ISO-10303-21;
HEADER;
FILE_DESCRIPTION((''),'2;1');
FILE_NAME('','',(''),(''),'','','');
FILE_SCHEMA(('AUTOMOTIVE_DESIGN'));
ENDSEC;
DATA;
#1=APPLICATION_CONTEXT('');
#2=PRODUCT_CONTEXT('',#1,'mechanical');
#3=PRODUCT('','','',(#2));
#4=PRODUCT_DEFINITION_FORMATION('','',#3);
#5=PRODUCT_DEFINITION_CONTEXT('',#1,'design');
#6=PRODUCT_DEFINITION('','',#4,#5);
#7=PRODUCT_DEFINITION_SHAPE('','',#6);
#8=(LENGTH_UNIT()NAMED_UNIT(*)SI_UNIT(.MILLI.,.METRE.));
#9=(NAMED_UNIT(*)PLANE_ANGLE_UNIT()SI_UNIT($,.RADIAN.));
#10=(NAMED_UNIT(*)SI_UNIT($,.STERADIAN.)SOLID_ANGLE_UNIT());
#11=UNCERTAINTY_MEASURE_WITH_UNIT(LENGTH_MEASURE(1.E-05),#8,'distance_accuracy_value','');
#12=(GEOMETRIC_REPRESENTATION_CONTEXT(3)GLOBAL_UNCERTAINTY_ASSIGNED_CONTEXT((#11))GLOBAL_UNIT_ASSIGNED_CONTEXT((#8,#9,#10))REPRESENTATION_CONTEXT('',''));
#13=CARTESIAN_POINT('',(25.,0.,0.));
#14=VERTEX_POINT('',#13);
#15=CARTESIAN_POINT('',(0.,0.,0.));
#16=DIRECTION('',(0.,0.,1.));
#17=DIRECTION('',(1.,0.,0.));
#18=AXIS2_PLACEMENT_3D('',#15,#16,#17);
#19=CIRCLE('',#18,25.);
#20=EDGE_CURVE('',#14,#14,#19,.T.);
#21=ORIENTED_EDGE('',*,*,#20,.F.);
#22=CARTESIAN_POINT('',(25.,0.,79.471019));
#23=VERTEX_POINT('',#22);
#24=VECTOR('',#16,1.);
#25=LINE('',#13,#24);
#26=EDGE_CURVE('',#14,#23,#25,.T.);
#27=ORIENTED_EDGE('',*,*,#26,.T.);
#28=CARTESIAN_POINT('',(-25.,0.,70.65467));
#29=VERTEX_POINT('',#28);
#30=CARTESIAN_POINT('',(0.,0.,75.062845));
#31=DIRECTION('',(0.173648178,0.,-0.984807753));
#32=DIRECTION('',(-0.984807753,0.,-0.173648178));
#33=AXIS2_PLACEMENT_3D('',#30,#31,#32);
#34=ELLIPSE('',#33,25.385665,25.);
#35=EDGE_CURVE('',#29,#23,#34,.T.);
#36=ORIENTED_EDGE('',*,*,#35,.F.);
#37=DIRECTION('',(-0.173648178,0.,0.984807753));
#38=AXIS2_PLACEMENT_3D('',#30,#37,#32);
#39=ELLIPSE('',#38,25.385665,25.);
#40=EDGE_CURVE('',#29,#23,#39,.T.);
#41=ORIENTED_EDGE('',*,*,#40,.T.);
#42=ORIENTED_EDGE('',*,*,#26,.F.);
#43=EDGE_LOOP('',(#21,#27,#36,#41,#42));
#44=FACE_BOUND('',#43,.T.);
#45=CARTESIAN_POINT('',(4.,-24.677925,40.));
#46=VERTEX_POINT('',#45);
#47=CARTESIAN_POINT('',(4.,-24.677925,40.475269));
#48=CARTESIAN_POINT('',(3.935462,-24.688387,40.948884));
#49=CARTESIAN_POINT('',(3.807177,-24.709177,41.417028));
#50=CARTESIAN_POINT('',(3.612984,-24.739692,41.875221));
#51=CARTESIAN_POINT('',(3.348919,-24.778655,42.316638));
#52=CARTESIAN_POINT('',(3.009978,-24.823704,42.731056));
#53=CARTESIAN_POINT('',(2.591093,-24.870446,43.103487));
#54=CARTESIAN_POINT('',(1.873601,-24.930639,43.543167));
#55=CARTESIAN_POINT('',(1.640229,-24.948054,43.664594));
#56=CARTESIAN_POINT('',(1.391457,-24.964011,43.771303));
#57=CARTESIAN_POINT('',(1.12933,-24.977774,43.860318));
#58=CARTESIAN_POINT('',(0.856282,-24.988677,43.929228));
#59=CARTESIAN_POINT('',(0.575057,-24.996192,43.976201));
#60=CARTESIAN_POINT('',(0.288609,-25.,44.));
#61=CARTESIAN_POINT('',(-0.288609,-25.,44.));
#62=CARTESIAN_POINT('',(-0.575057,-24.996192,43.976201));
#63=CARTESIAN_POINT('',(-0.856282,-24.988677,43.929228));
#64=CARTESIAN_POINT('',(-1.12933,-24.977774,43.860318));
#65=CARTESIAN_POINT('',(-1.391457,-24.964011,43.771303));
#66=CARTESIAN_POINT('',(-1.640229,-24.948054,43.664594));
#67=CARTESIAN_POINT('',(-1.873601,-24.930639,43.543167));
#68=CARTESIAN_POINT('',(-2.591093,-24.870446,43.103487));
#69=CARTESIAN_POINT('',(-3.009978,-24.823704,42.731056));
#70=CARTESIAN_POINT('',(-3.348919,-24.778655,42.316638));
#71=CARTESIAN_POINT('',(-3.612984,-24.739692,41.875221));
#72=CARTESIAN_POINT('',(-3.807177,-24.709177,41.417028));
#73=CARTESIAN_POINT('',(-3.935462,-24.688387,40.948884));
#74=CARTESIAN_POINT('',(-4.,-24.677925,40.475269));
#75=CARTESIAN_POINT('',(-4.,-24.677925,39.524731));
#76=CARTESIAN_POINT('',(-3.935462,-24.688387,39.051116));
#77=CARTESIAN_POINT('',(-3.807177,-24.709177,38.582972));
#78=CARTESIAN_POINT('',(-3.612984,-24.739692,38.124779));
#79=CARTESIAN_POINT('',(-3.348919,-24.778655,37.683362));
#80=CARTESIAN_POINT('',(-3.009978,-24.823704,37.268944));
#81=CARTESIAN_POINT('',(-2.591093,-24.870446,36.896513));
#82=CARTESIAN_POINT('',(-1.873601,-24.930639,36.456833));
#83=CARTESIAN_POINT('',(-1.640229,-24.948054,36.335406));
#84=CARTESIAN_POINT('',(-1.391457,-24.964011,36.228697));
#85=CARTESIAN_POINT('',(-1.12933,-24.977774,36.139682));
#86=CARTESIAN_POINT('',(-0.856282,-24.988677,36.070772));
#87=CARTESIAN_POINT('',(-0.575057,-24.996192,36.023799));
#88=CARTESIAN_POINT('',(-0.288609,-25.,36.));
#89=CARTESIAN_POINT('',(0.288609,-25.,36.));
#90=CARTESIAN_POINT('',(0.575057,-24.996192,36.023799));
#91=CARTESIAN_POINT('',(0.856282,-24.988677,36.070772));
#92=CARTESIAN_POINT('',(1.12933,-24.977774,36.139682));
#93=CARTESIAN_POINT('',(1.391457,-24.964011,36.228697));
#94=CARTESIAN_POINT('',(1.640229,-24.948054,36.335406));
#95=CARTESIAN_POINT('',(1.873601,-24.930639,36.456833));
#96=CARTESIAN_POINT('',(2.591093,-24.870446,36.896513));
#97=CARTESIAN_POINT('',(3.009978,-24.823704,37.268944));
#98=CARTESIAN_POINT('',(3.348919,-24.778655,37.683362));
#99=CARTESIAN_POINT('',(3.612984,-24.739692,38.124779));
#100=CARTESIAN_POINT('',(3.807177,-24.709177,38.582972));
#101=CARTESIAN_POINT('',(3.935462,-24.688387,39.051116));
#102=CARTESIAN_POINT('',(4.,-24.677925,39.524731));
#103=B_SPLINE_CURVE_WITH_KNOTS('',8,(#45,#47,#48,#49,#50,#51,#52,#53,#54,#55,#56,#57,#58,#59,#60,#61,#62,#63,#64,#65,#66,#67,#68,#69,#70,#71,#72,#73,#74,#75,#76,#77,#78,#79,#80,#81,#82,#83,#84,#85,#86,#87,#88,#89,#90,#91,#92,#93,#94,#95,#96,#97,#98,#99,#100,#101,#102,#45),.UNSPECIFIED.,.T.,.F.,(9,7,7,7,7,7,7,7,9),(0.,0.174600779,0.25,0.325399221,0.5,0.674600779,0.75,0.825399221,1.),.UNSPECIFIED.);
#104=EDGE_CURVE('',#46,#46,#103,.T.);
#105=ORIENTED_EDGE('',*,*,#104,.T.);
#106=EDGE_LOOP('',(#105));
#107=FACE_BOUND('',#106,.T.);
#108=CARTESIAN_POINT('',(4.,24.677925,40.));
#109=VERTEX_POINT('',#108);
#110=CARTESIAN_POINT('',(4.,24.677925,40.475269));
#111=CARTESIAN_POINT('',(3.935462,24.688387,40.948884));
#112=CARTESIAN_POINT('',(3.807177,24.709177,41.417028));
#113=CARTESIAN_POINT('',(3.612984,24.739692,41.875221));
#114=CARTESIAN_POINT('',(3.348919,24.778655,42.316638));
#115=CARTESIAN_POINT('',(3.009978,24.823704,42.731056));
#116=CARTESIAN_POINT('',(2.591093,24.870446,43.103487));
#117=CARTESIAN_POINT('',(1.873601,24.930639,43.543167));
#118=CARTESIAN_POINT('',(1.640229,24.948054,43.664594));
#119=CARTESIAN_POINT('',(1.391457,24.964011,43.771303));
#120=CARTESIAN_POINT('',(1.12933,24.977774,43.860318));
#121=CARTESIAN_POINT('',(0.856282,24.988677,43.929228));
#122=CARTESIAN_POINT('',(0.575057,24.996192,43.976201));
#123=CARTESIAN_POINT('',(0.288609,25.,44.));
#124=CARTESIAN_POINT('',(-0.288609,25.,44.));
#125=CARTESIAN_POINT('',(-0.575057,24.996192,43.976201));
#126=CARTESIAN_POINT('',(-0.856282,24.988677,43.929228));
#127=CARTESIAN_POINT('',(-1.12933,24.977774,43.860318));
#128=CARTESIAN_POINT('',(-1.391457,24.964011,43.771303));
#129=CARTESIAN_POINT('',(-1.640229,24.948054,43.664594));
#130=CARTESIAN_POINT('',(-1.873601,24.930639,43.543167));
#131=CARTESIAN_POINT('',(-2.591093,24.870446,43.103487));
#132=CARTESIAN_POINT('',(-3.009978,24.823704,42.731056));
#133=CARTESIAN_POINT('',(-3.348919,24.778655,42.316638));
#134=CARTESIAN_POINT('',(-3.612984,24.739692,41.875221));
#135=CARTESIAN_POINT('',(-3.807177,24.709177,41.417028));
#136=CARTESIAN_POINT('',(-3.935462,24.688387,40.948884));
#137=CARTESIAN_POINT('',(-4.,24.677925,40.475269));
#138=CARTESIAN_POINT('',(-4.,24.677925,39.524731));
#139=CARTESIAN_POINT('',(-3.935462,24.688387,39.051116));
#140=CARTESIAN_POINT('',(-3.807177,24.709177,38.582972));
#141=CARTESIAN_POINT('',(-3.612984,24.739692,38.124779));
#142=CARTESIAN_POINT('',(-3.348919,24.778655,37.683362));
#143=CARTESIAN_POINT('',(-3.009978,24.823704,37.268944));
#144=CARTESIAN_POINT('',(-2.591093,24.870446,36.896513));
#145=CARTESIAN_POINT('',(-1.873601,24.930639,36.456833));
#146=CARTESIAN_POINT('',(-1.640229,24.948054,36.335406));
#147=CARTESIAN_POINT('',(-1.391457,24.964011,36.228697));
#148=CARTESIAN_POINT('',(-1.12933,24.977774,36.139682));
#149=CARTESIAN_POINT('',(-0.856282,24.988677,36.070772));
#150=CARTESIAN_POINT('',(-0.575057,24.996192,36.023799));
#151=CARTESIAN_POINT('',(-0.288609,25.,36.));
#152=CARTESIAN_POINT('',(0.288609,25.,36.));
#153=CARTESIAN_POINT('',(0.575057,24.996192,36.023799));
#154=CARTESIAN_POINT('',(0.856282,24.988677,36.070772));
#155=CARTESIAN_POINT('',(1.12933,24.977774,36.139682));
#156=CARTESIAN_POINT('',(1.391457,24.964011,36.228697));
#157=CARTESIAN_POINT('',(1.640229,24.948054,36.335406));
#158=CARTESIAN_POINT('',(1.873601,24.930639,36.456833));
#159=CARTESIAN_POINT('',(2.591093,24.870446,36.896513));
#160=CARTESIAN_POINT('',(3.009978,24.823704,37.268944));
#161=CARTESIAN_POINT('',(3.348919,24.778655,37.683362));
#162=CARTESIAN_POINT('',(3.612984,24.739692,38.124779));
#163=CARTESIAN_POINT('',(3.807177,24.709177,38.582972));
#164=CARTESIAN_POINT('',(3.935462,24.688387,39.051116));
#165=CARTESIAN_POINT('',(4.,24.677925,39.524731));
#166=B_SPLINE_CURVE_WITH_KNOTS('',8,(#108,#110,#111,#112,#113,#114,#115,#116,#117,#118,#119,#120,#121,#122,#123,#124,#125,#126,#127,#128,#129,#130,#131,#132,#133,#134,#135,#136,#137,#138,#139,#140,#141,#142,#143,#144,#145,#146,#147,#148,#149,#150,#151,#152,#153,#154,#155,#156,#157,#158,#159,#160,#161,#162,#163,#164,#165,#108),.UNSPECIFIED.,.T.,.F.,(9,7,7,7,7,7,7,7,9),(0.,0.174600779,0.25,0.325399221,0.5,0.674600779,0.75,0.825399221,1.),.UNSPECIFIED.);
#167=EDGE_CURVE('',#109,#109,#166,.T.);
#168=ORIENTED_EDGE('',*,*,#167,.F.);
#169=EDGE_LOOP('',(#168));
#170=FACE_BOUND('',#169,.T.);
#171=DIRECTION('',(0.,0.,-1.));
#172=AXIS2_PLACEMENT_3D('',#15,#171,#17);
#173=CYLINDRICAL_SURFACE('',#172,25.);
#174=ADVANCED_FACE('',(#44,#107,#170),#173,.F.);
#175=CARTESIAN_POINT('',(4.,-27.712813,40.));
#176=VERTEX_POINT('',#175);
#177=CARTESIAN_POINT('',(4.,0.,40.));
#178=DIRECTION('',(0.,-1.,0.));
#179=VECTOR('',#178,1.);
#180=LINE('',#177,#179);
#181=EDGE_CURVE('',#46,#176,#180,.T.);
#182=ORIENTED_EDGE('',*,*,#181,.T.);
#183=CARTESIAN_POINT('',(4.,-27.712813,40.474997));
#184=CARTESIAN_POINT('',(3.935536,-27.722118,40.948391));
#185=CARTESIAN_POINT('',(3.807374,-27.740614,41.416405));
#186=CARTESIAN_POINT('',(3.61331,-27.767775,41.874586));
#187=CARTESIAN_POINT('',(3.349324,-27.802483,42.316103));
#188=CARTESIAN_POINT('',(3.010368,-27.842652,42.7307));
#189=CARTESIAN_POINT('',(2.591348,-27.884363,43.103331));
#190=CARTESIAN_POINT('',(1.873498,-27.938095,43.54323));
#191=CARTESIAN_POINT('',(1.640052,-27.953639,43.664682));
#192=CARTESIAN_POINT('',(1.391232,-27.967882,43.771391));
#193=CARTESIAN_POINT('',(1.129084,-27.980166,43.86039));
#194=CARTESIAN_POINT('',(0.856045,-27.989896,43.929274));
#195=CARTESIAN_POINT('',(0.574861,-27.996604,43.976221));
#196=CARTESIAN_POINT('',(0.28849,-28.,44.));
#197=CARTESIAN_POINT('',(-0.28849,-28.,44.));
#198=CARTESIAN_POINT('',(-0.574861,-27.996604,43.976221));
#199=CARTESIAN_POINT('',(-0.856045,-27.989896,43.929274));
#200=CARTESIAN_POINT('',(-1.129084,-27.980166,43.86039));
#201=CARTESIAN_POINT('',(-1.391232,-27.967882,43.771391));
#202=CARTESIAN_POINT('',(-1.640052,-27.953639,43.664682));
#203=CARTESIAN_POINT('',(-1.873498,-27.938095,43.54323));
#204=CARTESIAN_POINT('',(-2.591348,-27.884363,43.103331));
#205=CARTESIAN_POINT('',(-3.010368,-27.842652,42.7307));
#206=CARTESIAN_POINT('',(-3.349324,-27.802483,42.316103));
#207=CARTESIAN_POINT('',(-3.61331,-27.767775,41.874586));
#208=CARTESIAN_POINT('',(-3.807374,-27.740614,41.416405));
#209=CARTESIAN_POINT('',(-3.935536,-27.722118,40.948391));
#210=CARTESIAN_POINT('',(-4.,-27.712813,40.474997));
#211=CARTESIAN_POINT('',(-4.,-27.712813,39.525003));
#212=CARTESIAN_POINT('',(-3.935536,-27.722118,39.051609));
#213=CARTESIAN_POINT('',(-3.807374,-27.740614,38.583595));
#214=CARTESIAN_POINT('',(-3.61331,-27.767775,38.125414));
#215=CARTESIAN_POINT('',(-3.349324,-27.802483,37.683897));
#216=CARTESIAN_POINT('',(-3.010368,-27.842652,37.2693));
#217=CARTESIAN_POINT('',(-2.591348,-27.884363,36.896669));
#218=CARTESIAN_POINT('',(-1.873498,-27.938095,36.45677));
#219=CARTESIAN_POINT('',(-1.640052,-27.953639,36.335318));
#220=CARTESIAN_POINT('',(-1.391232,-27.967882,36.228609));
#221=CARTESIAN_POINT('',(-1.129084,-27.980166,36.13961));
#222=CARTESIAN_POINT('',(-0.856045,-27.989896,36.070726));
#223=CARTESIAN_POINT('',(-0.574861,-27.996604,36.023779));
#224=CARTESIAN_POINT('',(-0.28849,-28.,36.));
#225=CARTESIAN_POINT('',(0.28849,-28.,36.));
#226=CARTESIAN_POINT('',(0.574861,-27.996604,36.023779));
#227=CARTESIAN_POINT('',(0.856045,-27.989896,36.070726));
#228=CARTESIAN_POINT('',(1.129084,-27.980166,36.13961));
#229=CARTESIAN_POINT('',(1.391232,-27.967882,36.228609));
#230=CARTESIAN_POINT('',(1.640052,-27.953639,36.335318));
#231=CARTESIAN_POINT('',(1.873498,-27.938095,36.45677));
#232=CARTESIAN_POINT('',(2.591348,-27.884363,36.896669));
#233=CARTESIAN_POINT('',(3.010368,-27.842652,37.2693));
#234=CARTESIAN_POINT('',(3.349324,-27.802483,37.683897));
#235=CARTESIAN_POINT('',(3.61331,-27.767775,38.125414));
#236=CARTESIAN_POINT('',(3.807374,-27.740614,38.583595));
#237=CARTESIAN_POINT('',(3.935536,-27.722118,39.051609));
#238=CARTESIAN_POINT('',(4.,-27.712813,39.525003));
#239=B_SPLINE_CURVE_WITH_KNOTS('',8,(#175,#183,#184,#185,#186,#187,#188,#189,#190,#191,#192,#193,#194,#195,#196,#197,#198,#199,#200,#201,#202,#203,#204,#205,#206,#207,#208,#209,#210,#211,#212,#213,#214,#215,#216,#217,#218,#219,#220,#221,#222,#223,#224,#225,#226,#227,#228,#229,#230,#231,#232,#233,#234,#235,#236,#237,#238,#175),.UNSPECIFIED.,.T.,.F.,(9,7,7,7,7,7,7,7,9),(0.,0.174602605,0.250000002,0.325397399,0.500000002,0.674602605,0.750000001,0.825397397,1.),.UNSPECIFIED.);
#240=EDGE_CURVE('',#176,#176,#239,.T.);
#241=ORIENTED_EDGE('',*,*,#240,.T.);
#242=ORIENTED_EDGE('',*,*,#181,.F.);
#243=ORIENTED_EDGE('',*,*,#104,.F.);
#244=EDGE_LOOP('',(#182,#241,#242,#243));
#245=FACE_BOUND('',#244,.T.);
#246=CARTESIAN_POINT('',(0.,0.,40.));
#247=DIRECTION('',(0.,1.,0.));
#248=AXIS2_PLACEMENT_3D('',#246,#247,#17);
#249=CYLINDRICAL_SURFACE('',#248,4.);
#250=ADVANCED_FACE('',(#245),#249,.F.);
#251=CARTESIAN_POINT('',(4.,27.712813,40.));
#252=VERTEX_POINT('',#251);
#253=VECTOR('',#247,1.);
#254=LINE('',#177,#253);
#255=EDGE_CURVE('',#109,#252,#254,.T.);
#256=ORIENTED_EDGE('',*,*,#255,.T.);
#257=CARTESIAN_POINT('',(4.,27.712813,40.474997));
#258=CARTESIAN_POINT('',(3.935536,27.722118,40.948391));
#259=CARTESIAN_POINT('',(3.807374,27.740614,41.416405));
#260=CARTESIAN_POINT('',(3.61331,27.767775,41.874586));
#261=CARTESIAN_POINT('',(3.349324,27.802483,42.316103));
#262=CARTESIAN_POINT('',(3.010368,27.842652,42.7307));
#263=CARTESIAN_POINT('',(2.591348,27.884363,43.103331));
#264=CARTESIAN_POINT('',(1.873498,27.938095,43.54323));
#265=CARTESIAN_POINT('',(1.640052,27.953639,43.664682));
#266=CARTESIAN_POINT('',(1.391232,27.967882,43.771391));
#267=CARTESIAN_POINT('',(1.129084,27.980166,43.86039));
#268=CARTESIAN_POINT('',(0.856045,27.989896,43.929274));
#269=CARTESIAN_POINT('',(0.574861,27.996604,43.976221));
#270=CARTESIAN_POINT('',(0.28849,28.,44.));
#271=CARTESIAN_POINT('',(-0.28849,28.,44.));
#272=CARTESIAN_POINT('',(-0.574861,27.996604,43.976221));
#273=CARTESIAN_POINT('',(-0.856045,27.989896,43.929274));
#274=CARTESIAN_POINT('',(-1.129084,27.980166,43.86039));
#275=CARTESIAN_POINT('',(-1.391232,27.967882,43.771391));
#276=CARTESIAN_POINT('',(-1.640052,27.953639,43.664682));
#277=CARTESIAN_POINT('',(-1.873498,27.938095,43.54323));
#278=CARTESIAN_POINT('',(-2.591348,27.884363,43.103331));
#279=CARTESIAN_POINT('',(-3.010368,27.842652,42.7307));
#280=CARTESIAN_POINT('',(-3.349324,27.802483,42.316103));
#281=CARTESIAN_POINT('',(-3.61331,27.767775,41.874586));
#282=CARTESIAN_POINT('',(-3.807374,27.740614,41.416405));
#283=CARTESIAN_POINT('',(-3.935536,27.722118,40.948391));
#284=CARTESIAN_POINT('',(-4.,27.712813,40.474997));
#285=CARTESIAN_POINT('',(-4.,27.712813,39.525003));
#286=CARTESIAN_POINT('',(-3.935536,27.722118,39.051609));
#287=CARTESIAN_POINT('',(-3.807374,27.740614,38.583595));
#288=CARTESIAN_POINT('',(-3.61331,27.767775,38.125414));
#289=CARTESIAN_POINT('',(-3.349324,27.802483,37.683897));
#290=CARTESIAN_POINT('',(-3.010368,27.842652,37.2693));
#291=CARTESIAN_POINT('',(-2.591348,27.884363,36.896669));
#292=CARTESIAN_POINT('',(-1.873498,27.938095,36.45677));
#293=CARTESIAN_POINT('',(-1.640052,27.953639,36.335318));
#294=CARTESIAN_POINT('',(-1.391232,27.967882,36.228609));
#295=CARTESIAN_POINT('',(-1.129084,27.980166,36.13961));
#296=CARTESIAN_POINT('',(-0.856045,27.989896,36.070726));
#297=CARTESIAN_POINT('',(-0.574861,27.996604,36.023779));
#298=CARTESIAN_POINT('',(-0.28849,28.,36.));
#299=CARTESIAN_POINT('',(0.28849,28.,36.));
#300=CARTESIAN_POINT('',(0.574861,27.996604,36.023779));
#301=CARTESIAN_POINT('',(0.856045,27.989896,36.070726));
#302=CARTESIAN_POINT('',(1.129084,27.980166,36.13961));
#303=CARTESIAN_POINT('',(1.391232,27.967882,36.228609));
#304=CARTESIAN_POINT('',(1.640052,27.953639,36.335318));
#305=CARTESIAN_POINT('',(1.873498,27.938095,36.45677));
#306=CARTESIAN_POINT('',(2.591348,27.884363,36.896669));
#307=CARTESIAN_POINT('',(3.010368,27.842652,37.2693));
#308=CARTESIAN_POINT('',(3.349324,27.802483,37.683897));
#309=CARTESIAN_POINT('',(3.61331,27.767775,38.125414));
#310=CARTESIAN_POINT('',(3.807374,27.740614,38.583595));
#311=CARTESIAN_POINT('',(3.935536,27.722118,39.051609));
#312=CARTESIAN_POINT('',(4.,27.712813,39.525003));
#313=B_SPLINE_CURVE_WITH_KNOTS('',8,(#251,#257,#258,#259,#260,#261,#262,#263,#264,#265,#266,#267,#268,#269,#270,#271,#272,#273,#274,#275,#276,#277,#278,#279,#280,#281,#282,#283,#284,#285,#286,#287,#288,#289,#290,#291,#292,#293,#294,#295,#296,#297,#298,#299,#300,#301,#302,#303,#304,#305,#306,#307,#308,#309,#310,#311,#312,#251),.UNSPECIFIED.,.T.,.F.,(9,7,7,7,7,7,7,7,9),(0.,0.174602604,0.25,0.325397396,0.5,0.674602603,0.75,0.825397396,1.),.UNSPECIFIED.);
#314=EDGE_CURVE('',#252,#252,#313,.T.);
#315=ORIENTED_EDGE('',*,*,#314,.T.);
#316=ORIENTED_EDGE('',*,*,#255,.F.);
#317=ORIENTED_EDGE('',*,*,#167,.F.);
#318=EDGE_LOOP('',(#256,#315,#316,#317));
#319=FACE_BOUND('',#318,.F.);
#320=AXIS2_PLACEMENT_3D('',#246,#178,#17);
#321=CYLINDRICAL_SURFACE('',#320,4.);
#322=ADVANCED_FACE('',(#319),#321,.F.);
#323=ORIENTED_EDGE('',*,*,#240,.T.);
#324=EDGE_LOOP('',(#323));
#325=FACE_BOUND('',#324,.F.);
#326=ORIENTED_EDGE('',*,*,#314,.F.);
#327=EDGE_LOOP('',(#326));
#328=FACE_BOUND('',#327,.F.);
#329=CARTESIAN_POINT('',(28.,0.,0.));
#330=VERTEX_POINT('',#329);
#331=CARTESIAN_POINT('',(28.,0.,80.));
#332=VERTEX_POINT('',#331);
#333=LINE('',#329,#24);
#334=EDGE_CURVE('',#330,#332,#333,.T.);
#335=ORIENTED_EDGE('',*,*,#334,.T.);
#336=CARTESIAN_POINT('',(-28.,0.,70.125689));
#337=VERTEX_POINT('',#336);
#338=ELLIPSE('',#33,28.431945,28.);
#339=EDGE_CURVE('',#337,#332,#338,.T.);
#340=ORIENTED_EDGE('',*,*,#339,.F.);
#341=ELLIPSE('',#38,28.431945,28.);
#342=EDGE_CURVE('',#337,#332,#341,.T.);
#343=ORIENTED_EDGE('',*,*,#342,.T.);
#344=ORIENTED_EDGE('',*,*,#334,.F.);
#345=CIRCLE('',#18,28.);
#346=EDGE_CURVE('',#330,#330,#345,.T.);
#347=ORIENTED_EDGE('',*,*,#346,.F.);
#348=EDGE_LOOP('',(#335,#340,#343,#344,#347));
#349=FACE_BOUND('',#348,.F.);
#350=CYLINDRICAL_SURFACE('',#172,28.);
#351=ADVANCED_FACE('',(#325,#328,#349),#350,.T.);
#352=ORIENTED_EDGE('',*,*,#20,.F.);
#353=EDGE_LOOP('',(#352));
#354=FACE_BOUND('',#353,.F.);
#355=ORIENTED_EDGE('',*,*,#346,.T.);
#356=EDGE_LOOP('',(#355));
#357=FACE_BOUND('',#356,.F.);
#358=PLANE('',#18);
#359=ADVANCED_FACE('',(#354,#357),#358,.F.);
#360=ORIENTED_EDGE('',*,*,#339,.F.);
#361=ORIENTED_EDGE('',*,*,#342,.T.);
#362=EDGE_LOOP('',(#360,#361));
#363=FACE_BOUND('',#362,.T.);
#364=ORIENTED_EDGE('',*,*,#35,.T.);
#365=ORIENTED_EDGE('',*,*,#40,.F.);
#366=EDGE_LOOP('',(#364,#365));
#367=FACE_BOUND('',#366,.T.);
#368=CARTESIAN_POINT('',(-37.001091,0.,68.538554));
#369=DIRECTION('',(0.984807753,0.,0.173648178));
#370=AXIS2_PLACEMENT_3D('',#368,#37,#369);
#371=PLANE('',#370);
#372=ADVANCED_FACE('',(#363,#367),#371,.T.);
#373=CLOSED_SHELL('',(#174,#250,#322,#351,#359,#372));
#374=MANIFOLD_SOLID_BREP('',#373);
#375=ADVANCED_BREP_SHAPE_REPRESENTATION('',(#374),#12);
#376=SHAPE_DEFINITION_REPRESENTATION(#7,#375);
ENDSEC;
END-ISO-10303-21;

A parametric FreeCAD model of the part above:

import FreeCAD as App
import Part
import Sketcher

V = App.Vector
Q = App.Units.Quantity


def add_polygon(sketch, points):
    """Adds a closed chain of lines whose ends are joined by coincident constraints."""
    first, n = sketch.GeometryCount, len(points)
    for a, b in zip(points, points[1:] + points[:1]):
        sketch.addGeometry(Part.LineSegment(App.Vector(*a, 0), App.Vector(*b, 0)), False)
    for i in range(n):
        sketch.addConstraint(Sketcher.Constraint("Coincident", first + i, 2, first + (i + 1) % n, 1))

doc = App.newDocument("Part")
body = doc.addObject("PartDesign::Body", "Body")

# Sketch on XY plane
sketch1 = body.newObject("Sketcher::SketchObject", "Sketch")
sketch1.AttachmentSupport = (doc.getObject("XY_Plane"), [""])
sketch1.MapMode = "FlatFace"
sketch1.addGeometry([
    Part.Circle(V(0, 0, 0), V(0, 0, 1), 28),
    Part.Circle(V(0, 0, 0), V(0, 0, 1), 25),
], False)
sketch1.addConstraint([
    Sketcher.Constraint("Coincident", 0, 3, -1, 1),
    Sketcher.Constraint("Coincident", 1, 3, -1, 1),
    Sketcher.Constraint("Diameter", 0, 56.0),
    Sketcher.Constraint("Diameter", 1, 50.0),
])
pad1 = body.newObject("PartDesign::Pad", "Pad")
pad1.Profile = sketch1
pad1.Length = 80

# Sketch on XZ plane
sketch2 = body.newObject("Sketcher::SketchObject", "Sketch001")
sketch2.AttachmentSupport = (doc.getObject("XZ_Plane"), [""])
sketch2.MapMode = "FlatFace"
add_polygon(sketch2, [(-37.074201, 93.221627), (-37.001091, 68.538554), (28, 80)])  # lines 0-2
sketch2.addConstraint([
    Sketcher.Constraint("Angle", 1, Q("10 deg")),
    Sketcher.Constraint("DistanceX", -1, 1, 1, 2, 28.0),
    Sketcher.Constraint("DistanceY", -1, 1, 1, 2, 80.0),
    Sketcher.Constraint("DistanceX", 2, 2, -1, 1, 37.074201),
    Sketcher.Constraint("Distance", 0, 24.683182),
    Sketcher.Constraint("DistanceX", 0, 2, -1, 1, 37.001091),
])
pocket1 = body.newObject("PartDesign::Pocket", "Pocket")
pocket1.Profile = sketch2
pocket1.Type = "ThroughAll"
pocket1.Midplane = True

# Sketch on XZ plane
sketch3 = body.newObject("Sketcher::SketchObject", "Sketch002")
sketch3.AttachmentSupport = (doc.getObject("XZ_Plane"), [""])
sketch3.MapMode = "FlatFace"
sketch3.addGeometry(Part.Circle(V(0, 40, 0), V(0, 0, 1), 4), False)
sketch3.addConstraint([
    Sketcher.Constraint("PointOnObject", 0, 3, -2),
    Sketcher.Constraint("Diameter", 0, 8.0),
    Sketcher.Constraint("DistanceY", -1, 1, 0, 3, 40.0),
])
pocket2 = body.newObject("PartDesign::Pocket", "Pocket001")
pocket2.Profile = sketch3
pocket2.Type = "ThroughAll"
pocket2.Midplane = True

doc.recompute()
